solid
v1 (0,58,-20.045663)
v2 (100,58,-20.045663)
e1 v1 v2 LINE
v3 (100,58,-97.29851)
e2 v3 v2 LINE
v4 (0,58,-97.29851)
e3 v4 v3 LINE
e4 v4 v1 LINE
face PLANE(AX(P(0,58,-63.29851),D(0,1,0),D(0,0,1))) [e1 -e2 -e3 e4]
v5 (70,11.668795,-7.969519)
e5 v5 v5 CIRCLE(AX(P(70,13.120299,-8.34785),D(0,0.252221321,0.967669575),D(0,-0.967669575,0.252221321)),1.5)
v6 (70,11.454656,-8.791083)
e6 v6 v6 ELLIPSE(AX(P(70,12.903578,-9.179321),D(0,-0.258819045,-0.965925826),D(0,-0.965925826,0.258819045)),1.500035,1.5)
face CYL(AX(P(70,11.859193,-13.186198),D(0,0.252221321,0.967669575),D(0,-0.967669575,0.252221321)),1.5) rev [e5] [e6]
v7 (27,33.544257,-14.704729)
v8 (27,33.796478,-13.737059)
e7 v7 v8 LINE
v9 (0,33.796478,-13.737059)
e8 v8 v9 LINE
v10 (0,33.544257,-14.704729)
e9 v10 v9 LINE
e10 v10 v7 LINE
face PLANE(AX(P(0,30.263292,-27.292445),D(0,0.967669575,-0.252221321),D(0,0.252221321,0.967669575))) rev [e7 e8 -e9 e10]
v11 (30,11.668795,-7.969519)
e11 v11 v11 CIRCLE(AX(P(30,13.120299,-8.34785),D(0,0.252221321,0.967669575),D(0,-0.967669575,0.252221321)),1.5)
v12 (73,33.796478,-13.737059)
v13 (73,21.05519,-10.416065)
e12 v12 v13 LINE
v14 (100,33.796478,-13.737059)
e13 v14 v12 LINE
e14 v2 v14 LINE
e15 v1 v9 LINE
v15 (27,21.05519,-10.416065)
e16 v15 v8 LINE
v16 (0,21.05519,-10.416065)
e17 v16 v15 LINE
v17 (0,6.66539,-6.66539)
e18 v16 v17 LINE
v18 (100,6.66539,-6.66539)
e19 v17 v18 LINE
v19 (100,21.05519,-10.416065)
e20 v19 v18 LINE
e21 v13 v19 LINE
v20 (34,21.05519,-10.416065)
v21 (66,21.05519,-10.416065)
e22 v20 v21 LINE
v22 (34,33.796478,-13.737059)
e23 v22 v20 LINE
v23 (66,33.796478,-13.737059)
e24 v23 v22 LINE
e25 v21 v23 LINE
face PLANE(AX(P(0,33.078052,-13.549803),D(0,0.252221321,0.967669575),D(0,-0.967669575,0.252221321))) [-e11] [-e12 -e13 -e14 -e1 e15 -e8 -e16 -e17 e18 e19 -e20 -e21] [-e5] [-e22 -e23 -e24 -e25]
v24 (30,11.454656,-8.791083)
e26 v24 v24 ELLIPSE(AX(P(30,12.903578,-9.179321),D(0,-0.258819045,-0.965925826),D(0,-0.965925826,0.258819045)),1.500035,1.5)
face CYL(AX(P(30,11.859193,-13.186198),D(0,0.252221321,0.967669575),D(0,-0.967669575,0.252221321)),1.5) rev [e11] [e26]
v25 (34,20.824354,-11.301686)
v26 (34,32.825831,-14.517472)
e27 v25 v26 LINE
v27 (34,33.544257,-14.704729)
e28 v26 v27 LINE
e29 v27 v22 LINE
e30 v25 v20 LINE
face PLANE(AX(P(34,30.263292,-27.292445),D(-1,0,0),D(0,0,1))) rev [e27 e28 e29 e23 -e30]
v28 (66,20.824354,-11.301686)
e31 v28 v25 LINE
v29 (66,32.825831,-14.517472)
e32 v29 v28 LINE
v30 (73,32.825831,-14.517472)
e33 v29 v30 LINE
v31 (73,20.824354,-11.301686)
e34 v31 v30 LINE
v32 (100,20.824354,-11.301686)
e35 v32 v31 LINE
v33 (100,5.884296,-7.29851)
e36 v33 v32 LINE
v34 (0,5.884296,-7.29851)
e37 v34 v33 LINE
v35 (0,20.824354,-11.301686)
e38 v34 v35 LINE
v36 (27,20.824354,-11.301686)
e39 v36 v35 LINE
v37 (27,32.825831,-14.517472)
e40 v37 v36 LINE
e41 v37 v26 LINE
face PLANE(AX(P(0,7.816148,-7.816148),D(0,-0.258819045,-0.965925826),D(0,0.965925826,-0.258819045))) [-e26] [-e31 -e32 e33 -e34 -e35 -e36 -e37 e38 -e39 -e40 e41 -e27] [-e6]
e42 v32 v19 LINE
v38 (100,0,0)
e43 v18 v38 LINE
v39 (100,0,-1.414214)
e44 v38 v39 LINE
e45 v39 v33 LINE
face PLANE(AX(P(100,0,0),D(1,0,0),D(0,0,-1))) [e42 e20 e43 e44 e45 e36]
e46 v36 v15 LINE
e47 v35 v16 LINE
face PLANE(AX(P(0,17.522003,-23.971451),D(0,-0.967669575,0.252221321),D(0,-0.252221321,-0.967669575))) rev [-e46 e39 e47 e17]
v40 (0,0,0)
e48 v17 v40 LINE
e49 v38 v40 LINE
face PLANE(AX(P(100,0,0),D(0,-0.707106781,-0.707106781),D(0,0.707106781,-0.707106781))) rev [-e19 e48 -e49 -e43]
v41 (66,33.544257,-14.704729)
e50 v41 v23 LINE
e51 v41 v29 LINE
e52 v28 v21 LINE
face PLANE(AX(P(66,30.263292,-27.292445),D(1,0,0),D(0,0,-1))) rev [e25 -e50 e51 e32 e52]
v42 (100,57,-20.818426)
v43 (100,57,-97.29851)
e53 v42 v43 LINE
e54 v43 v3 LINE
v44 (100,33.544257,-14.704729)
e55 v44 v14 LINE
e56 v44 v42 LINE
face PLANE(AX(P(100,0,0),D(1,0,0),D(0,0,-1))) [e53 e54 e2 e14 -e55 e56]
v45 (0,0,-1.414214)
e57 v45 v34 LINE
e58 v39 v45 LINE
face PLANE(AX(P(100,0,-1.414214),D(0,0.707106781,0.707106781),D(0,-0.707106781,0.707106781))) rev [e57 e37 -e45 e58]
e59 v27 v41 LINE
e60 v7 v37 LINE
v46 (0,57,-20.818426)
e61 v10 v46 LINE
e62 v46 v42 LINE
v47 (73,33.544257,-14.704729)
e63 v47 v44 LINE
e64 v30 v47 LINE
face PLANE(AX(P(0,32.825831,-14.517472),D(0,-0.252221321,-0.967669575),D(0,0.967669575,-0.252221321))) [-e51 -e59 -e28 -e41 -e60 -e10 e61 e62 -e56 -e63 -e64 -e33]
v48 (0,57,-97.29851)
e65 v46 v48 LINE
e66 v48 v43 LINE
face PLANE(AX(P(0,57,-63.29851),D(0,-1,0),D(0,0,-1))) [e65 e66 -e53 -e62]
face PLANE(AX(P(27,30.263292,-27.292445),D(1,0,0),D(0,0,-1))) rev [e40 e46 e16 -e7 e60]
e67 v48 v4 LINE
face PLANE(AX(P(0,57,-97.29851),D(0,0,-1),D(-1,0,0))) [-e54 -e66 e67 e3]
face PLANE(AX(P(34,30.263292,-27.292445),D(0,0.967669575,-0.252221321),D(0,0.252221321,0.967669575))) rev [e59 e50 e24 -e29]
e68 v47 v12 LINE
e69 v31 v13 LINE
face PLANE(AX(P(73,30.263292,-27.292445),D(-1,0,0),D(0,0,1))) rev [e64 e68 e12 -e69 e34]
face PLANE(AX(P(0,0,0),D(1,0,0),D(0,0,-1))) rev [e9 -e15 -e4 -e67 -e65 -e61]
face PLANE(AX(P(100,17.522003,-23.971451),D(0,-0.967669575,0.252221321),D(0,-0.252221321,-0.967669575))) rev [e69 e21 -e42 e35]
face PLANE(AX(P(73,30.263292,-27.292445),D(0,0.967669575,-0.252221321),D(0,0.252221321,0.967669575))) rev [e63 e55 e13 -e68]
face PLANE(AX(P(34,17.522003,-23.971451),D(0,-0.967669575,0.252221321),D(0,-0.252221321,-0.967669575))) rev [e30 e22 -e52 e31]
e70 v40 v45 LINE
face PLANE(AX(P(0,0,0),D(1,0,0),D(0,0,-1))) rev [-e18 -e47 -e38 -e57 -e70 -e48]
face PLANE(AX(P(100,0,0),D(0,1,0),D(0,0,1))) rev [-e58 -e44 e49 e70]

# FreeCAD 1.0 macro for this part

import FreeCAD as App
import Part
import Sketcher

V = App.Vector
Q = App.Units.Quantity

doc = App.newDocument("Part")
params = doc.addObject("Spreadsheet::Sheet", "Params")
for row, (alias, value) in enumerate([
    ("sketch1_length", "1 mm"),
    ("pad1_length", "100 mm"),
    ("sketch2_length", "1 mm"),
    ("pad2_length", "100 mm"),
    ("sketch3_length", "2 mm"),
    ("sketch3_length2", "1 mm"),
    ("pocket1_length", "100 mm"),
    ("sketch4_length", "1 mm"),
    ("pad3_length", "100 mm"),
    ("sketch5_diameter", "3 mm"),
    ("pocket2_length", "5 mm"),
    ("sketch6_width", "27 mm"),
    ("sketch6_width2", "32 mm"),
    ("sketch7_length", "1 mm"),
    ("sketch8_width", "1 mm"),
    ("pad4_length", "100 mm"),
], start=1):
    params.set(f"A{row}", alias)
    params.set(f"B{row}", "=" + value)
    params.setAlias(f"B{row}", alias)

body = doc.addObject("PartDesign::Body", "Body")

# Sketch on YZ plane
sketch1 = body.newObject("Sketcher::SketchObject", "Sketch")
sketch1.AttachmentSupport = (doc.getObject("YZ_Plane"), [""])
sketch1.MapMode = "FlatFace"
sketch1.addGeometry([
    Part.LineSegment(V(9.3, -9.3, 0), V(0, 0, 0)),  # 0
    Part.LineSegment(V(0, 0, 0), V(0, -1.4, 0)),  # 1
    Part.LineSegment(V(0, -1.4, 0), V(8.6, -10, 0)),  # 2
    Part.LineSegment(V(8.6, -10, 0), V(31.9, -16.9, 0)),  # 3
    Part.LineSegment(V(31.9, -16.9, 0), V(32.1, -16, 0)),  # 4
    Part.LineSegment(V(32.1, -16, 0), V(9.3, -9.3, 0)),  # 5
], False)
sketch1.addConstraint([
    Sketcher.Constraint("Coincident", 0, 2, 1, 1),
    Sketcher.Constraint("Coincident", 1, 2, 2, 1),
    Sketcher.Constraint("Coincident", 2, 2, 3, 1),
    Sketcher.Constraint("Coincident", 3, 2, 4, 1),
    Sketcher.Constraint("Coincident", 4, 2, 5, 1),
    Sketcher.Constraint("Coincident", 5, 2, 0, 1),
    Sketcher.Constraint("Vertical", 1),
    Sketcher.Constraint("Coincident", 0, 2, -1, 1),
    Sketcher.Constraint("Parallel", 0, 2),
    Sketcher.Constraint("Angle", 0, Q("135 deg")),
    Sketcher.Constraint("Distance", 4, 1.0),
    Sketcher.Constraint("DistanceY", 2, 2, -1, 1, 10.0),
    Sketcher.Constraint("Distance", 5, 23.774811),
    Sketcher.Constraint("DistanceY", 1, 2, 1, 1, 1.414214),
    Sketcher.Constraint("DistanceX", -1, 1, 3, 2, 31.850529),
    Sketcher.Constraint("DistanceX", -1, 1, 4, 2, 32.111149),
    Sketcher.Constraint("DistanceY", 4, 2, 1, 2, 14.554672),
])
sketch1.setExpression("Constraints[10]", "Params.sketch1_length")
pad1 = body.newObject("PartDesign::Pad", "Pad")
pad1.Profile = sketch1
pad1.setExpression("Length", "Params.pad1_length")

# Sketch on YZ plane
sketch2 = body.newObject("Sketcher::SketchObject", "Sketch001")
sketch2.AttachmentSupport = (doc.getObject("YZ_Plane"), [""])
sketch2.MapMode = "FlatFace"
sketch2.AttachmentOffset = App.Placement(V(0, 0, 100), App.Rotation())
sketch2.addGeometry([
    Part.LineSegment(V(7.8, -7.8, 0), V(32.8, -14.5, 0)),
    Part.LineSegment(V(32.8, -14.5, 0), V(33.1, -13.5, 0)),
    Part.LineSegment(V(33.1, -13.5, 0), V(6.7, -6.7, 0)),
    Part.LineSegment(V(6.7, -6.7, 0), V(7.8, -7.8, 0)),
], False)
sketch2.addConstraint([
    Sketcher.Constraint("Coincident", 0, 2, 1, 1),
    Sketcher.Constraint("Coincident", 1, 2, 2, 1),
    Sketcher.Constraint("Coincident", 2, 2, 3, 1),
    Sketcher.Constraint("Coincident", 3, 2, 0, 1),
    Sketcher.Constraint("Perpendicular", 1, 2),
    Sketcher.Constraint("Angle", 0, Q("-15 deg")),
    Sketcher.Constraint("Angle", 3, Q("-45 deg")),
    Sketcher.Constraint("Distance", 1, 1.0),
    Sketcher.Constraint("Distance", 0, 25.891929),
    Sketcher.Constraint("DistanceX", -1, 1, 0, 2, 32.825831),
    Sketcher.Constraint("DistanceX", -1, 1, 2, 2, 6.66539),
    Sketcher.Constraint("DistanceY", 2, 2, -1, 1, 6.66539),
])
sketch2.setExpression("Constraints[7]", "Params.sketch2_length")
pad2 = body.newObject("PartDesign::Pad", "Pad001")
pad2.Profile = sketch2
pad2.setExpression("Length", "Params.pad2_length")
pad2.Reversed = True

# Sketch on YZ plane
sketch3 = body.newObject("Sketcher::SketchObject", "Sketch002")
sketch3.AttachmentSupport = (doc.getObject("YZ_Plane"), [""])
sketch3.MapMode = "FlatFace"
sketch3.AttachmentOffset = App.Placement(V(0, 0, 100), App.Rotation())
sketch3.addGeometry([
    Part.LineSegment(V(7.8, -7.8, 0), V(5.9, -7.3, 0)),  # 0
    Part.LineSegment(V(5.9, -7.3, 0), V(8.6, -10, 0)),  # 1
    Part.LineSegment(V(8.6, -10, 0), V(31.9, -16.9, 0)),  # 2
    Part.LineSegment(V(31.9, -16.9, 0), V(32.1, -16, 0)),  # 3
    Part.LineSegment(V(32.1, -16, 0), V(9.3, -9.3, 0)),  # 4
    Part.LineSegment(V(9.3, -9.3, 0), V(7.8, -7.8, 0)),  # 5
], False)
sketch3.addConstraint([
    Sketcher.Constraint("Coincident", 0, 2, 1, 1),
    Sketcher.Constraint("Coincident", 1, 2, 2, 1),
    Sketcher.Constraint("Coincident", 2, 2, 3, 1),
    Sketcher.Constraint("Coincident", 3, 2, 4, 1),
    Sketcher.Constraint("Coincident", 4, 2, 5, 1),
    Sketcher.Constraint("Coincident", 5, 2, 0, 1),
    Sketcher.Constraint("Parallel", 1, 5),
    Sketcher.Constraint("Angle", 0, Q("165 deg")),
    Sketcher.Constraint("Angle", 1, Q("-45 deg")),
    Sketcher.Constraint("Distance", 0, 2.0),
    Sketcher.Constraint("Distance", 3, 1.0),
    Sketcher.Constraint("DistanceY", 1, 2, -1, 1, 10.0),
    Sketcher.Constraint("DistanceX", 5, 2, 3, 2, 24.295001),
    Sketcher.Constraint("Distance", 4, 23.774811),
    Sketcher.Constraint("DistanceY", 0, 2, -1, 1, 7.29851),
    Sketcher.Constraint("DistanceX", -1, 1, 2, 2, 31.850529),
    Sketcher.Constraint("DistanceX", -1, 1, 3, 2, 32.111149),
    Sketcher.Constraint("DistanceY", 2, 2, 5, 2, 9.118179),
])
sketch3.setExpression("Constraints[9]", "Params.sketch3_length")
sketch3.setExpression("Constraints[10]", "Params.sketch3_length2")
pocket1 = body.newObject("PartDesign::Pocket", "Pocket")
pocket1.Profile = sketch3
pocket1.setExpression("Length", "Params.pocket1_length")

# Sketch on YZ plane
sketch4 = body.newObject("Sketcher::SketchObject", "Sketch003")
sketch4.AttachmentSupport = (doc.getObject("YZ_Plane"), [""])
sketch4.MapMode = "FlatFace"
sketch4.AttachmentOffset = App.Placement(V(0, 0, 100), App.Rotation())
sketch4.addGeometry([
    Part.LineSegment(V(33.1, -13.5, 0), V(32.8, -14.5, 0)),
    Part.LineSegment(V(32.8, -14.5, 0), V(51.6, -19.4, 0)),
    Part.LineSegment(V(51.6, -19.4, 0), V(51.8, -18.4, 0)),
    Part.LineSegment(V(51.8, -18.4, 0), V(33.1, -13.5, 0)),
], False)
sketch4.addConstraint([
    Sketcher.Constraint("Coincident", 0, 2, 1, 1),
    Sketcher.Constraint("Coincident", 1, 2, 2, 1),
    Sketcher.Constraint("Coincident", 2, 2, 3, 1),
    Sketcher.Constraint("Coincident", 3, 2, 0, 1),
    Sketcher.Constraint("Perpendicular", 0, 1),
    Sketcher.Constraint("Perpendicular", 1, 2),
    Sketcher.Constraint("Perpendicular", 2, 3),
    Sketcher.Constraint("Distance", 0, 1.0),
    Sketcher.Constraint("DistanceY", 1, 2, 0, 2, 4.886901),
    Sketcher.Constraint("DistanceX", -1, 1, 0, 2, 32.825831),
    Sketcher.Constraint("DistanceX", -1, 1, 1, 2, 51.574861),
    Sketcher.Constraint("DistanceY", 0, 2, -1, 1, 14.517472),
])
sketch4.setExpression("Constraints[7]", "Params.sketch4_length")
pad3 = body.newObject("PartDesign::Pad", "Pad002")
pad3.Profile = sketch4
pad3.setExpression("Length", "Params.pad3_length")
pad3.Reversed = True

# Sketch on an angled plane
sketch5 = body.newObject("Sketcher::SketchObject", "Sketch004")
sketch5.Placement = App.Placement(V(0, -1.202778, -4.614566), App.Rotation(V(1, 0, 0), V(0, 0.967669575, -0.252221321), V(0, 0.252221321, 0.967669575), "ZXY"))
sketch5.addGeometry([
    Part.Circle(V(30, 14.8, 0), V(0, 0, 1), 1.5),
    Part.Circle(V(70, 14.8, 0), V(0, 0, 1), 1.5),
], False)
sketch5.addConstraint([
    Sketcher.Constraint("Equal", 0, 1),
    Sketcher.Constraint("Horizontal", 0, 3, 1, 3),
    Sketcher.Constraint("Diameter", 0, 3.0),
    Sketcher.Constraint("DistanceX", -1, 1, 0, 3, 30.0),
    Sketcher.Constraint("DistanceX", -1, 1, 1, 3, 70.0),
    Sketcher.Constraint("DistanceY", -1, 1, 0, 3, 14.80162),
])
sketch5.setExpression("Constraints[2]", "Params.sketch5_diameter")
pocket2 = body.newObject("PartDesign::Pocket", "Pocket001")
pocket2.Profile = sketch5
pocket2.setExpression("Length", "Params.pocket2_length")

# Sketch on an angled plane
sketch6 = body.newObject("Sketcher::SketchObject", "Sketch005")
sketch6.Placement = App.Placement(V(0, -1.202778, -4.614566), App.Rotation(V(1, 0, 0), V(0, 0.967669575, -0.252221321), V(0, 0.252221321, 0.967669575), "ZXY"))
sketch6.addGeometry([
    Part.LineSegment(V(0, 36, 0), V(0, 23, 0)),  # 0
    Part.LineSegment(V(0, 23, 0), V(27, 23, 0)),  # 1
    Part.LineSegment(V(27, 23, 0), V(27, 36, 0)),  # 2
    Part.LineSegment(V(27, 36, 0), V(0, 36, 0)),  # 3
    Part.LineSegment(V(73, 36, 0), V(73, 23, 0)),  # 4
    Part.LineSegment(V(73, 23, 0), V(100, 23, 0)),  # 5
    Part.LineSegment(V(100, 23, 0), V(100, 36, 0)),  # 6
    Part.LineSegment(V(100, 36, 0), V(73, 36, 0)),  # 7
    Part.LineSegment(V(34, 36, 0), V(34, 23, 0)),  # 8
    Part.LineSegment(V(34, 23, 0), V(66, 23, 0)),  # 9
    Part.LineSegment(V(66, 23, 0), V(66, 36, 0)),  # 10
    Part.LineSegment(V(66, 36, 0), V(34, 36, 0)),  # 11
], False)
sketch6.addConstraint([
    Sketcher.Constraint("Coincident", 0, 2, 1, 1),
    Sketcher.Constraint("Coincident", 1, 2, 2, 1),
    Sketcher.Constraint("Coincident", 2, 2, 3, 1),
    Sketcher.Constraint("Coincident", 3, 2, 0, 1),
    Sketcher.Constraint("Coincident", 4, 2, 5, 1),
    Sketcher.Constraint("Coincident", 5, 2, 6, 1),
    Sketcher.Constraint("Coincident", 6, 2, 7, 1),
    Sketcher.Constraint("Coincident", 7, 2, 4, 1),
    Sketcher.Constraint("Coincident", 8, 2, 9, 1),
    Sketcher.Constraint("Coincident", 9, 2, 10, 1),
    Sketcher.Constraint("Coincident", 10, 2, 11, 1),
    Sketcher.Constraint("Coincident", 11, 2, 8, 1),
    Sketcher.Constraint("Vertical", 0),
    Sketcher.Constraint("Horizontal", 1),
    Sketcher.Constraint("Vertical", 2),
    Sketcher.Constraint("Horizontal", 3),
    Sketcher.Constraint("Vertical", 4),
    Sketcher.Constraint("Horizontal", 5),
    Sketcher.Constraint("Vertical", 6),
    Sketcher.Constraint("Horizontal", 7),
    Sketcher.Constraint("Vertical", 8),
    Sketcher.Constraint("Horizontal", 9),
    Sketcher.Constraint("Vertical", 10),
    Sketcher.Constraint("Horizontal", 11),
    Sketcher.Constraint("PointOnObject", 0, 2, -2),
    Sketcher.Constraint("Horizontal", 1, 2, 4, 2),
    Sketcher.Constraint("Horizontal", 3, 2, 6, 2),
    Sketcher.Constraint("Horizontal", 5, 2, 8, 2),
    Sketcher.Constraint("Horizontal", 7, 2, 10, 2),
    Sketcher.Constraint("Equal", 3, 5),
    Sketcher.Constraint("DistanceX", 1, 1, 1, 2, 27.0),
    Sketcher.Constraint("DistanceX", 9, 1, 9, 2, 32.0),
    Sketcher.Constraint("DistanceX", -1, 1, 4, 2, 73.0),
    Sketcher.Constraint("DistanceX", -1, 1, 8, 2, 34.0),
    Sketcher.Constraint("DistanceY", 0, 2, 0, 1, 13.166983),
    Sketcher.Constraint("DistanceY", -1, 1, 0, 2, 23.00162),
])
sketch6.setExpression("Constraints[30]", "Params.sketch6_width")
sketch6.setExpression("Constraints[31]", "Params.sketch6_width2")
pocket3 = body.newObject("PartDesign::Pocket", "Pocket002")
pocket3.Profile = sketch6
pocket3.Type = "ThroughAll"

# Sketch on YZ plane
sketch7 = body.newObject("Sketcher::SketchObject", "Sketch006")
sketch7.AttachmentSupport = (doc.getObject("YZ_Plane"), [""])
sketch7.MapMode = "FlatFace"
sketch7.AttachmentOffset = App.Placement(V(0, 0, 100), App.Rotation())
sketch7.addGeometry([
    Part.LineSegment(V(44.6, -10.5, 0), V(44.6, -17.6, 0)),
    Part.LineSegment(V(44.6, -17.6, 0), V(51.6, -19.4, 0)),
    Part.LineSegment(V(51.6, -19.4, 0), V(51.8, -18.4, 0)),
    Part.LineSegment(V(51.8, -18.4, 0), V(44.6, -10.5, 0)),
], False)
sketch7.addConstraint([
    Sketcher.Constraint("Coincident", 0, 2, 1, 1),
    Sketcher.Constraint("Coincident", 1, 2, 2, 1),
    Sketcher.Constraint("Coincident", 2, 2, 3, 1),
    Sketcher.Constraint("Coincident", 3, 2, 0, 1),
    Sketcher.Constraint("Vertical", 0),
    Sketcher.Constraint("Perpendicular", 1, 2),
    Sketcher.Constraint("Distance", 2, 1.0),
    Sketcher.Constraint("DistanceX", 0, 2, 1, 2, 7.0),
    Sketcher.Constraint("Angle", 3, Q("132.589991 deg")),
    Sketcher.Constraint("DistanceY", 0, 2, 0, 1, 7.032629),
    Sketcher.Constraint("DistanceX", -1, 1, 0, 2, 44.574861),
    Sketcher.Constraint("DistanceY", 0, 2, -1, 1, 17.579836),
])
sketch7.setExpression("Constraints[6]", "Params.sketch7_length")
pocket4 = body.newObject("PartDesign::Pocket", "Pocket003")
pocket4.Profile = sketch7
pocket4.Type = "ThroughAll"

# Sketch on YZ plane
sketch8 = body.newObject("Sketcher::SketchObject", "Sketch007")
sketch8.AttachmentSupport = (doc.getObject("YZ_Plane"), [""])
sketch8.MapMode = "FlatFace"
sketch8.AttachmentOffset = App.Placement(V(0, 0, 100), App.Rotation())
sketch8.addGeometry([
    Part.LineSegment(V(44.6, -16.5, 0), V(44.6, -17.6, 0)),  # 0
    Part.LineSegment(V(44.6, -17.6, 0), V(57, -20.8, 0)),  # 1
    Part.LineSegment(V(57, -20.8, 0), V(57, -97.3, 0)),  # 2
    Part.LineSegment(V(57, -97.3, 0), V(58, -97.3, 0)),  # 3
    Part.LineSegment(V(58, -97.3, 0), V(58, -20, 0)),  # 4
    Part.LineSegment(V(58, -20, 0), V(44.6, -16.5, 0)),  # 5
], False)
sketch8.addConstraint([
    Sketcher.Constraint("Coincident", 0, 2, 1, 1),
    Sketcher.Constraint("Coincident", 1, 2, 2, 1),
    Sketcher.Constraint("Coincident", 2, 2, 3, 1),
    Sketcher.Constraint("Coincident", 3, 2, 4, 1),
    Sketcher.Constraint("Coincident", 4, 2, 5, 1),
    Sketcher.Constraint("Coincident", 5, 2, 0, 1),
    Sketcher.Constraint("Vertical", 0),
    Sketcher.Constraint("Vertical", 2),
    Sketcher.Constraint("Horizontal", 3),
    Sketcher.Constraint("Vertical", 4),
    Sketcher.Constraint("Parallel", 1, 5),
    Sketcher.Constraint("DistanceX", 3, 1, 3, 2, 1.0),
    Sketcher.Constraint("DistanceX", -1, 1, 1, 2, 57.0),
    Sketcher.Constraint("DistanceY", 1, 2, 5, 2, 4.272001),
    Sketcher.Constraint("DistanceY", 0, 2, 0, 1, 1.033411),
    Sketcher.Constraint("Distance", 1, 12.840271),
    Sketcher.Constraint("DistanceY", 2, 2, 2, 1, 76.480084),
    Sketcher.Constraint("DistanceY", 2, 2, -1, 1, 97.29851),
])
sketch8.setExpression("Constraints[11]", "Params.sketch8_width")
pad4 = body.newObject("PartDesign::Pad", "Pad003")
pad4.Profile = sketch8
pad4.setExpression("Length", "Params.pad4_length")
pad4.Reversed = True

doc.recompute()
